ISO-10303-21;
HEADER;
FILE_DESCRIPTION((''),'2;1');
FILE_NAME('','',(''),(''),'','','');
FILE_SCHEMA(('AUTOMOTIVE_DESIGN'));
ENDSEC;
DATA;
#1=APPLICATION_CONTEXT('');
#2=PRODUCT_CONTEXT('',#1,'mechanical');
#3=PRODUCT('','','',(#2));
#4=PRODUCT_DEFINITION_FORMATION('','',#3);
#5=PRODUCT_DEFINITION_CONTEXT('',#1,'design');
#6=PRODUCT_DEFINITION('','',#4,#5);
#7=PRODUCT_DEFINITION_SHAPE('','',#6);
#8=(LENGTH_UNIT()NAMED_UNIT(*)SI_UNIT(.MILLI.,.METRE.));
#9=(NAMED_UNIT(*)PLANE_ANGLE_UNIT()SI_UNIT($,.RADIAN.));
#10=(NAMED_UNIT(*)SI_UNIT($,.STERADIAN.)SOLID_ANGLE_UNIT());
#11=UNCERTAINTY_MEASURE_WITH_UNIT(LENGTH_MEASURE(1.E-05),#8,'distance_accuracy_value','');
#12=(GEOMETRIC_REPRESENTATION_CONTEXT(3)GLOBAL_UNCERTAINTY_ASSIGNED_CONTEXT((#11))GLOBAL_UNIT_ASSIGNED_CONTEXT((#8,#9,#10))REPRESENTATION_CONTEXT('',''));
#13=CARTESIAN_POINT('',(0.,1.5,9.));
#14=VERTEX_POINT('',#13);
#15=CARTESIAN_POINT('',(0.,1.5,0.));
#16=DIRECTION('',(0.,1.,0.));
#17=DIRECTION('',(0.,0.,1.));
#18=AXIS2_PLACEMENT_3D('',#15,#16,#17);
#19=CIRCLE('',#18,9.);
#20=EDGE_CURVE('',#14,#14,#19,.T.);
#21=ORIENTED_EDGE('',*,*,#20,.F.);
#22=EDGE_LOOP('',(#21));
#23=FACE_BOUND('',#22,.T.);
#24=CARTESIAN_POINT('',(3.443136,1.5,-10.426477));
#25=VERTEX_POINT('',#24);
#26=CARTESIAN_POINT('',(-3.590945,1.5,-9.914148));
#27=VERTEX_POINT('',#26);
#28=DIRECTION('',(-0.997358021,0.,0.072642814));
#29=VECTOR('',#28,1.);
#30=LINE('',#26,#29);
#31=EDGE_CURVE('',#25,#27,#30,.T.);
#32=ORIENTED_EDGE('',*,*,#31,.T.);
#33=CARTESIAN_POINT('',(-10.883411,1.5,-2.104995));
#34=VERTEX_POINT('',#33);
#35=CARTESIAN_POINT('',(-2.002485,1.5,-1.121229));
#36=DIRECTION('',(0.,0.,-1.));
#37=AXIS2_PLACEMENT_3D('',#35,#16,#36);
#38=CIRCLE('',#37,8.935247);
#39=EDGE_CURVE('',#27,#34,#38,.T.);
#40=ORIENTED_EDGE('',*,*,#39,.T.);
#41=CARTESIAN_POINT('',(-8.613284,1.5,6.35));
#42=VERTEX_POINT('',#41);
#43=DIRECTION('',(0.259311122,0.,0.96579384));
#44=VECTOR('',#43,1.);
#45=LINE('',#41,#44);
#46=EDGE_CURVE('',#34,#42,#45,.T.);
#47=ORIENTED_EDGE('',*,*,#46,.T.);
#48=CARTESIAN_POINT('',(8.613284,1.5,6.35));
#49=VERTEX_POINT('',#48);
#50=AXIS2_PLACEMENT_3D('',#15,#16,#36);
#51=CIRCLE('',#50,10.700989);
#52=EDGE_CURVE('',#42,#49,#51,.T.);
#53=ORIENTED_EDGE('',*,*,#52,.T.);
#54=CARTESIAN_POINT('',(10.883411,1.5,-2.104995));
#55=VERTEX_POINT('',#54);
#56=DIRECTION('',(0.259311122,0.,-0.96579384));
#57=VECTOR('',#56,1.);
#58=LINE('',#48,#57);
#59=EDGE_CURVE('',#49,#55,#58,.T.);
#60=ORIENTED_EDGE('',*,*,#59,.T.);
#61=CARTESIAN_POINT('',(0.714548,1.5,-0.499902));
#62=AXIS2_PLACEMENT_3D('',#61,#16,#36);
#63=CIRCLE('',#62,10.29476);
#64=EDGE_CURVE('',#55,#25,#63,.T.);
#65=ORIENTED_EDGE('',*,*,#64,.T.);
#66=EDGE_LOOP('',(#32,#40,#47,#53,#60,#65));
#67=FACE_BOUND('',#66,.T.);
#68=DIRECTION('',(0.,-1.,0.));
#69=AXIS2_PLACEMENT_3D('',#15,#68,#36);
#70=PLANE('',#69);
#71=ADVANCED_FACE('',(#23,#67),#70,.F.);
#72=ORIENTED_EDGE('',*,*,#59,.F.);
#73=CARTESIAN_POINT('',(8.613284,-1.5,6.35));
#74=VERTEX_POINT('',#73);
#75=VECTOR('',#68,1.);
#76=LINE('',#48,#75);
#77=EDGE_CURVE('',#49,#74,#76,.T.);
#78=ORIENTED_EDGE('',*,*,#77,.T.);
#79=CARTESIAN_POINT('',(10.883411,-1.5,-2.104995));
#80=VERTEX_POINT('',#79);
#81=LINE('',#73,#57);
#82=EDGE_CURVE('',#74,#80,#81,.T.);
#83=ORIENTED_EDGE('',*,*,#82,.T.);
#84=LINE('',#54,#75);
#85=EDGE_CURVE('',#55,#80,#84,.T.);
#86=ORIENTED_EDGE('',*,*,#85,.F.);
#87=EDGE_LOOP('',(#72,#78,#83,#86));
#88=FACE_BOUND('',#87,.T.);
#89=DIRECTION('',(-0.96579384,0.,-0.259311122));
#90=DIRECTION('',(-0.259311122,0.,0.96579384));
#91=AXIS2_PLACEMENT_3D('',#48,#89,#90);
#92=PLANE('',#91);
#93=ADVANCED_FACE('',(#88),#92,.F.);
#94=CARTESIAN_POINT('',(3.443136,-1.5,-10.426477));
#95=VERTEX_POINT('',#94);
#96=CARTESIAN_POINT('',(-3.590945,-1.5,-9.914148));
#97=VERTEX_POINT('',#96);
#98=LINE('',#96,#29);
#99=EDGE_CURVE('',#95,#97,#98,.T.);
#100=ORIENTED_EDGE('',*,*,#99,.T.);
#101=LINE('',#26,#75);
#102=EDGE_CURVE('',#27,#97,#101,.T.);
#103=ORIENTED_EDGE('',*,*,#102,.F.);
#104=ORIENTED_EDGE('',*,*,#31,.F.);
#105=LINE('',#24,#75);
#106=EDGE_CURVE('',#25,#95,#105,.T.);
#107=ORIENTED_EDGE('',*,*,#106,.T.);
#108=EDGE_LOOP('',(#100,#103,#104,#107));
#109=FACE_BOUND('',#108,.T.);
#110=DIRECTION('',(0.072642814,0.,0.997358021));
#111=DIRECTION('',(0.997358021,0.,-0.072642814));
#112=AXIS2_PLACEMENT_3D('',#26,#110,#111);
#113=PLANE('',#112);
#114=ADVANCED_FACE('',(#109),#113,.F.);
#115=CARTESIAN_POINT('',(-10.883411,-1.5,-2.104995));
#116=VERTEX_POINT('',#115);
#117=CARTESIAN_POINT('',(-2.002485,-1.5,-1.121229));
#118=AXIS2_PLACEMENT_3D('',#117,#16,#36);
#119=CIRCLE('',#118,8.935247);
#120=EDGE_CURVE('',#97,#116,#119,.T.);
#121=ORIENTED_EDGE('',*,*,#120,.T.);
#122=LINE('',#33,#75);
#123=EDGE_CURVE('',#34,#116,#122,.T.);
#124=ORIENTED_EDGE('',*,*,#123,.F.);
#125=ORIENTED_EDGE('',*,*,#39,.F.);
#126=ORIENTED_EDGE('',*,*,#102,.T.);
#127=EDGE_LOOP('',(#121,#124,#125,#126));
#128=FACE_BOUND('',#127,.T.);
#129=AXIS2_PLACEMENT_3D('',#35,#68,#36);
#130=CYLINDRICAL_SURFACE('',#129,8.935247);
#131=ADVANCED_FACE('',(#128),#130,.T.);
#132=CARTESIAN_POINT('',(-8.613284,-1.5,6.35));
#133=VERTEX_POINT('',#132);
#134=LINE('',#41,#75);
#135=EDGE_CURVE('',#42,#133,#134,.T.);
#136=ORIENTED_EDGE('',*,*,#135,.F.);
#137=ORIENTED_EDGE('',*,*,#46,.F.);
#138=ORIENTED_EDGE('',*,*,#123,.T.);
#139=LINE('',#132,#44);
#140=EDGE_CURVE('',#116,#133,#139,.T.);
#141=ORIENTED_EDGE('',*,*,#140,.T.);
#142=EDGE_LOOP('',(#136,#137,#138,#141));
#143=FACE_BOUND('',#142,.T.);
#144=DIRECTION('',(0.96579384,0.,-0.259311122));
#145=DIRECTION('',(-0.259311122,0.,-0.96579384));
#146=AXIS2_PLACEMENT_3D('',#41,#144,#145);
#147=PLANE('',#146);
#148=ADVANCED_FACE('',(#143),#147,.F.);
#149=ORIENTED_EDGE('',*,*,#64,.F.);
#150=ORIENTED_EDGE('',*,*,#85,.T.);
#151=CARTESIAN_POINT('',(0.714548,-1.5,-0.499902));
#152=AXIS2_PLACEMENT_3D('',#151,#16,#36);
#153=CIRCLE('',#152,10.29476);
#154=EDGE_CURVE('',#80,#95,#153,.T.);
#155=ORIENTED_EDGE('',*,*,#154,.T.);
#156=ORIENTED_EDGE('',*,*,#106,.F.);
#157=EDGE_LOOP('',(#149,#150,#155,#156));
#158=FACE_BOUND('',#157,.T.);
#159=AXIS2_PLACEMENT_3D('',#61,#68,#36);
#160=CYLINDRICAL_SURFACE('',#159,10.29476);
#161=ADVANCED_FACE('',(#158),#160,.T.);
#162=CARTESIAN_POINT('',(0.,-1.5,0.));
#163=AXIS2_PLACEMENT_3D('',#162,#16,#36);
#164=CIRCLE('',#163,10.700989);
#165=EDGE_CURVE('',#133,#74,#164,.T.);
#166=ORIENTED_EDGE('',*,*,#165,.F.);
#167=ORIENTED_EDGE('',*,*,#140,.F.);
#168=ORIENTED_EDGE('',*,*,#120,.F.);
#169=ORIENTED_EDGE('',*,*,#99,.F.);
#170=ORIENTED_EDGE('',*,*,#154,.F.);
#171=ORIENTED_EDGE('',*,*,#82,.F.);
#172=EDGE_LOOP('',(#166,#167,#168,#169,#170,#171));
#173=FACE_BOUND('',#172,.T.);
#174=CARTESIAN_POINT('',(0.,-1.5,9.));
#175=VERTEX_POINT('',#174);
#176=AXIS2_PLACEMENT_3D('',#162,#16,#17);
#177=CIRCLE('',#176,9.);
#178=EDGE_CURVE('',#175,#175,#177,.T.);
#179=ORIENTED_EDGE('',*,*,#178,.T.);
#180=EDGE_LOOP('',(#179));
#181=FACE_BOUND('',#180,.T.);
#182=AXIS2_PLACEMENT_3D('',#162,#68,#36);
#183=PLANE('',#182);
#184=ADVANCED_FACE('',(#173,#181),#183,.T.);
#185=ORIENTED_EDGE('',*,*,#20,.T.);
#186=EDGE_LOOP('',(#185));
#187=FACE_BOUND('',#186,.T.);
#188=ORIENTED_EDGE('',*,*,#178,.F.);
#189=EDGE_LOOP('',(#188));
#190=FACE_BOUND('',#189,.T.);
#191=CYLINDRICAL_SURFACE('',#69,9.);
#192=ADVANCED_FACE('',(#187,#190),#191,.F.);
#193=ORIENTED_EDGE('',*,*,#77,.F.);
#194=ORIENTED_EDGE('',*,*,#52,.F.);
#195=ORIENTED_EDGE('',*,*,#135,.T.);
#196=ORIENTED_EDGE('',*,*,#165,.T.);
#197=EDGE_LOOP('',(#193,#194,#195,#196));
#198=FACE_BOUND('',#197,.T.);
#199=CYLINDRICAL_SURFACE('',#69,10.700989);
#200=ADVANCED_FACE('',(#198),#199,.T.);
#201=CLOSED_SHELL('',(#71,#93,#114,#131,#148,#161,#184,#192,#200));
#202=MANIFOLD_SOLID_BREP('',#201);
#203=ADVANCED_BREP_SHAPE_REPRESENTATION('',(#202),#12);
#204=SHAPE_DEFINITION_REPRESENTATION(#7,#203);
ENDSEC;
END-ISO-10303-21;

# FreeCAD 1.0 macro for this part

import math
import FreeCAD as App
import Part
import Sketcher
Q = App.Units.Quantity

doc = App.newDocument("Part")
body = doc.addObject("PartDesign::Body", "Body")

sketch1 = doc.addObject("Sketcher::SketchObject", "Sketch")
body.addObject(sketch1)
sketch1.AttachmentSupport = (doc.XZ_Plane, [""])
sketch1.MapMode = "FlatFace"
sketch1.addGeometry([
    Part.LineSegment(App.Vector(-11, -2, 0), App.Vector(-9, 6, 0)),
    Part.ArcOfCircle(Part.Circle(App.Vector(0, 0, 0), App.Vector(0, 0, 1), 11), math.radians(36), math.radians(144)),
    Part.LineSegment(App.Vector(9, 6, 0), App.Vector(11, -2, 0)),
    Part.ArcOfCircle(Part.Circle(App.Vector(1, 0, 0), App.Vector(0, 0, 1), 10), math.radians(-75), math.radians(-9)),
    Part.LineSegment(App.Vector(3, -10, 0), App.Vector(-4, -10, 0)),
    Part.ArcOfCircle(Part.Circle(App.Vector(-2, -1, 0), App.Vector(0, 0, 1), 9), math.radians(-174), math.radians(-100)),
    Part.Circle(App.Vector(0, 0, 0), App.Vector(0, 0, 1), 9),
], False)
sketch1.addConstraint([
    Sketcher.Constraint("Coincident", 0, 2, 1, 2),
    Sketcher.Constraint("Coincident", 1, 1, 2, 1),
    Sketcher.Constraint("Coincident", 2, 2, 3, 2),
    Sketcher.Constraint("Coincident", 3, 1, 4, 1),
    Sketcher.Constraint("Coincident", 4, 2, 5, 2),
    Sketcher.Constraint("Coincident", 5, 1, 0, 1),
    Sketcher.Constraint("Coincident", 1, 3, -1, 1),
    Sketcher.Constraint("Coincident", 6, 3, -1, 1),
    Sketcher.Constraint("Symmetric", 2, 2, 5, 1, -2),
    Sketcher.Constraint("Horizontal", 0, 2, 1, 1),
    Sketcher.Constraint("Diameter", 6, Q("18 mm")),
    Sketcher.Constraint("DistanceY", -1, 1, 0, 2, Q("6.35 mm")),
    Sketcher.Constraint("Radius", 1, Q("10.700989 mm")),
    Sketcher.Constraint("Radius", 3, Q("10.29476 mm")),
    Sketcher.Constraint("Radius", 5, Q("8.935247 mm")),
    Sketcher.Constraint("DistanceY", 3, 3, -1, 1, Q("0.499902 mm")),
    Sketcher.Constraint("DistanceX", 0, 2, 5, 3, Q("6.610799 mm")),
    Sketcher.Constraint("Distance", 0, Q("8.754451 mm")),
    Sketcher.Constraint("DistanceX", -1, 1, 3, 3, Q("0.714548 mm")),
    Sketcher.Constraint("DistanceX", 3, 3, 3, 1, Q("2.728588 mm")),
    Sketcher.Constraint("DistanceX", 4, 2, 3, 1, Q("7.034081 mm")),
])
pad1 = doc.addObject("PartDesign::Pad", "Pad")
body.addObject(pad1)
pad1.Profile = sketch1
pad1.Length = 3
pad1.Midplane = True

doc.recompute()
